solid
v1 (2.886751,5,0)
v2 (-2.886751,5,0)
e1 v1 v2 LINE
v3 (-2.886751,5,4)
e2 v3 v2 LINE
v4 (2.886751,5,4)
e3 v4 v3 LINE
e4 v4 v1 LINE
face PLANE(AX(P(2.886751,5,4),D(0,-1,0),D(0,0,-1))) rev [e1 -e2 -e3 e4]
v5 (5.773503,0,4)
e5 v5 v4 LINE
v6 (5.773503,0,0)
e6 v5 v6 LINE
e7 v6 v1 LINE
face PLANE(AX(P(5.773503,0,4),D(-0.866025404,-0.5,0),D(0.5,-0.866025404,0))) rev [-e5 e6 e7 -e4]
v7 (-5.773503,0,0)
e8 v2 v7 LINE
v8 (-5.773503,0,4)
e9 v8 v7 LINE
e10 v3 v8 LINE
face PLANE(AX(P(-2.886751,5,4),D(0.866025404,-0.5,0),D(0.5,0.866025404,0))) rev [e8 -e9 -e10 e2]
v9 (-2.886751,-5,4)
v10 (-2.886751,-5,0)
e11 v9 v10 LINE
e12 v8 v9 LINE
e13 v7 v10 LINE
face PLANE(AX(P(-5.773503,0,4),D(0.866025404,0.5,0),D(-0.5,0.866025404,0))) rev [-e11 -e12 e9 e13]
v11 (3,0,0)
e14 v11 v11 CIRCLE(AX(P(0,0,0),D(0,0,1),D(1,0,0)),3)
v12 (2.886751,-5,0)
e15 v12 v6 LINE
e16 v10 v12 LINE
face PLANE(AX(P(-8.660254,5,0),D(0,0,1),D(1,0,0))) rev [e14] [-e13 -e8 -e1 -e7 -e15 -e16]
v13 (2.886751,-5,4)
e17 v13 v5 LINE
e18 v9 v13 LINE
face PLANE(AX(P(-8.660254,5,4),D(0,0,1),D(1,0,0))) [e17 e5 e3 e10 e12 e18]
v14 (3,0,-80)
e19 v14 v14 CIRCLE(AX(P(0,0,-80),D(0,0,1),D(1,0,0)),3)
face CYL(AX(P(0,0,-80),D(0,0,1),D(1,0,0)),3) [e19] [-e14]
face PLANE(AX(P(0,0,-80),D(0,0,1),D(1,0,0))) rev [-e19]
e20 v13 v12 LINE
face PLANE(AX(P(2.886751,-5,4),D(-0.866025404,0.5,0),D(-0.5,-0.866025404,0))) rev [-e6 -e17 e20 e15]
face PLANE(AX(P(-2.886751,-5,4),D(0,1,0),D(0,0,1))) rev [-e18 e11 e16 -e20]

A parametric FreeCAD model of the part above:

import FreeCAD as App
import Part
import Sketcher
Q = App.Units.Quantity


def add_polygon(sketch, points):
    """Adds a closed chain of lines whose ends are joined by coincident constraints."""
    first, n = sketch.GeometryCount, len(points)
    for a, b in zip(points, points[1:] + points[:1]):
        sketch.addGeometry(Part.LineSegment(App.Vector(*a, 0), App.Vector(*b, 0)), False)
    for i in range(n):
        sketch.addConstraint(Sketcher.Constraint("Coincident", first + i, 2, first + (i + 1) % n, 1))

doc = App.newDocument("Part")
body = doc.addObject("PartDesign::Body", "Body")

# Sketch on XY plane
sketch1 = body.newObject("Sketcher::SketchObject", "Sketch")
sketch1.AttachmentSupport = (doc.getObject("XY_Plane"), [""])
sketch1.MapMode = "FlatFace"
sketch1.addGeometry(Part.Circle(App.Vector(0, 0, 0), App.Vector(0, 0, 1), 3), False)
sketch1.addConstraint(Sketcher.Constraint("Coincident", 0, 3, -1, 1))
sketch1.addConstraint(Sketcher.Constraint("Diameter", 0, 6.0))
pad1 = body.newObject("PartDesign::Pad", "Pad")
pad1.Profile = sketch1
pad1.Length = 80
pad1.Reversed = True

# Sketch on XY plane
sketch2 = body.newObject("Sketcher::SketchObject", "Sketch001")
sketch2.AttachmentSupport = (doc.getObject("XY_Plane"), [""])
sketch2.MapMode = "FlatFace"
add_polygon(sketch2, [(-3, 5), (-6, 0), (-3, -5), (3, -5), (6, 0), (3, 5)])  # lines 0-5
sketch2.addConstraint(Sketcher.Constraint("Horizontal", 2))
sketch2.addConstraint(Sketcher.Constraint("Horizontal", 5))
sketch2.addConstraint(Sketcher.Constraint("Symmetric", 0, 2, 3, 2, -1, 1))
sketch2.addConstraint(Sketcher.Constraint("Symmetric", 1, 2, 4, 2, -1, 1))
sketch2.addConstraint(Sketcher.Constraint("PointOnObject", 0, 2, -1))
sketch2.addConstraint(Sketcher.Constraint("Parallel", 0, 3))
sketch2.addConstraint(Sketcher.Constraint("Vertical", 2, 2, 4, 2))
sketch2.addConstraint(Sketcher.Constraint("Angle", 0, Q("-120 deg")))
sketch2.addConstraint(Sketcher.Constraint("DistanceY", 1, 2, -1, 1, 5.0))
sketch2.addConstraint(Sketcher.Constraint("DistanceX", 2, 1, 2, 2, 5.773503))
pad2 = body.newObject("PartDesign::Pad", "Pad001")
pad2.Profile = sketch2
pad2.Length = 4

doc.recompute()
